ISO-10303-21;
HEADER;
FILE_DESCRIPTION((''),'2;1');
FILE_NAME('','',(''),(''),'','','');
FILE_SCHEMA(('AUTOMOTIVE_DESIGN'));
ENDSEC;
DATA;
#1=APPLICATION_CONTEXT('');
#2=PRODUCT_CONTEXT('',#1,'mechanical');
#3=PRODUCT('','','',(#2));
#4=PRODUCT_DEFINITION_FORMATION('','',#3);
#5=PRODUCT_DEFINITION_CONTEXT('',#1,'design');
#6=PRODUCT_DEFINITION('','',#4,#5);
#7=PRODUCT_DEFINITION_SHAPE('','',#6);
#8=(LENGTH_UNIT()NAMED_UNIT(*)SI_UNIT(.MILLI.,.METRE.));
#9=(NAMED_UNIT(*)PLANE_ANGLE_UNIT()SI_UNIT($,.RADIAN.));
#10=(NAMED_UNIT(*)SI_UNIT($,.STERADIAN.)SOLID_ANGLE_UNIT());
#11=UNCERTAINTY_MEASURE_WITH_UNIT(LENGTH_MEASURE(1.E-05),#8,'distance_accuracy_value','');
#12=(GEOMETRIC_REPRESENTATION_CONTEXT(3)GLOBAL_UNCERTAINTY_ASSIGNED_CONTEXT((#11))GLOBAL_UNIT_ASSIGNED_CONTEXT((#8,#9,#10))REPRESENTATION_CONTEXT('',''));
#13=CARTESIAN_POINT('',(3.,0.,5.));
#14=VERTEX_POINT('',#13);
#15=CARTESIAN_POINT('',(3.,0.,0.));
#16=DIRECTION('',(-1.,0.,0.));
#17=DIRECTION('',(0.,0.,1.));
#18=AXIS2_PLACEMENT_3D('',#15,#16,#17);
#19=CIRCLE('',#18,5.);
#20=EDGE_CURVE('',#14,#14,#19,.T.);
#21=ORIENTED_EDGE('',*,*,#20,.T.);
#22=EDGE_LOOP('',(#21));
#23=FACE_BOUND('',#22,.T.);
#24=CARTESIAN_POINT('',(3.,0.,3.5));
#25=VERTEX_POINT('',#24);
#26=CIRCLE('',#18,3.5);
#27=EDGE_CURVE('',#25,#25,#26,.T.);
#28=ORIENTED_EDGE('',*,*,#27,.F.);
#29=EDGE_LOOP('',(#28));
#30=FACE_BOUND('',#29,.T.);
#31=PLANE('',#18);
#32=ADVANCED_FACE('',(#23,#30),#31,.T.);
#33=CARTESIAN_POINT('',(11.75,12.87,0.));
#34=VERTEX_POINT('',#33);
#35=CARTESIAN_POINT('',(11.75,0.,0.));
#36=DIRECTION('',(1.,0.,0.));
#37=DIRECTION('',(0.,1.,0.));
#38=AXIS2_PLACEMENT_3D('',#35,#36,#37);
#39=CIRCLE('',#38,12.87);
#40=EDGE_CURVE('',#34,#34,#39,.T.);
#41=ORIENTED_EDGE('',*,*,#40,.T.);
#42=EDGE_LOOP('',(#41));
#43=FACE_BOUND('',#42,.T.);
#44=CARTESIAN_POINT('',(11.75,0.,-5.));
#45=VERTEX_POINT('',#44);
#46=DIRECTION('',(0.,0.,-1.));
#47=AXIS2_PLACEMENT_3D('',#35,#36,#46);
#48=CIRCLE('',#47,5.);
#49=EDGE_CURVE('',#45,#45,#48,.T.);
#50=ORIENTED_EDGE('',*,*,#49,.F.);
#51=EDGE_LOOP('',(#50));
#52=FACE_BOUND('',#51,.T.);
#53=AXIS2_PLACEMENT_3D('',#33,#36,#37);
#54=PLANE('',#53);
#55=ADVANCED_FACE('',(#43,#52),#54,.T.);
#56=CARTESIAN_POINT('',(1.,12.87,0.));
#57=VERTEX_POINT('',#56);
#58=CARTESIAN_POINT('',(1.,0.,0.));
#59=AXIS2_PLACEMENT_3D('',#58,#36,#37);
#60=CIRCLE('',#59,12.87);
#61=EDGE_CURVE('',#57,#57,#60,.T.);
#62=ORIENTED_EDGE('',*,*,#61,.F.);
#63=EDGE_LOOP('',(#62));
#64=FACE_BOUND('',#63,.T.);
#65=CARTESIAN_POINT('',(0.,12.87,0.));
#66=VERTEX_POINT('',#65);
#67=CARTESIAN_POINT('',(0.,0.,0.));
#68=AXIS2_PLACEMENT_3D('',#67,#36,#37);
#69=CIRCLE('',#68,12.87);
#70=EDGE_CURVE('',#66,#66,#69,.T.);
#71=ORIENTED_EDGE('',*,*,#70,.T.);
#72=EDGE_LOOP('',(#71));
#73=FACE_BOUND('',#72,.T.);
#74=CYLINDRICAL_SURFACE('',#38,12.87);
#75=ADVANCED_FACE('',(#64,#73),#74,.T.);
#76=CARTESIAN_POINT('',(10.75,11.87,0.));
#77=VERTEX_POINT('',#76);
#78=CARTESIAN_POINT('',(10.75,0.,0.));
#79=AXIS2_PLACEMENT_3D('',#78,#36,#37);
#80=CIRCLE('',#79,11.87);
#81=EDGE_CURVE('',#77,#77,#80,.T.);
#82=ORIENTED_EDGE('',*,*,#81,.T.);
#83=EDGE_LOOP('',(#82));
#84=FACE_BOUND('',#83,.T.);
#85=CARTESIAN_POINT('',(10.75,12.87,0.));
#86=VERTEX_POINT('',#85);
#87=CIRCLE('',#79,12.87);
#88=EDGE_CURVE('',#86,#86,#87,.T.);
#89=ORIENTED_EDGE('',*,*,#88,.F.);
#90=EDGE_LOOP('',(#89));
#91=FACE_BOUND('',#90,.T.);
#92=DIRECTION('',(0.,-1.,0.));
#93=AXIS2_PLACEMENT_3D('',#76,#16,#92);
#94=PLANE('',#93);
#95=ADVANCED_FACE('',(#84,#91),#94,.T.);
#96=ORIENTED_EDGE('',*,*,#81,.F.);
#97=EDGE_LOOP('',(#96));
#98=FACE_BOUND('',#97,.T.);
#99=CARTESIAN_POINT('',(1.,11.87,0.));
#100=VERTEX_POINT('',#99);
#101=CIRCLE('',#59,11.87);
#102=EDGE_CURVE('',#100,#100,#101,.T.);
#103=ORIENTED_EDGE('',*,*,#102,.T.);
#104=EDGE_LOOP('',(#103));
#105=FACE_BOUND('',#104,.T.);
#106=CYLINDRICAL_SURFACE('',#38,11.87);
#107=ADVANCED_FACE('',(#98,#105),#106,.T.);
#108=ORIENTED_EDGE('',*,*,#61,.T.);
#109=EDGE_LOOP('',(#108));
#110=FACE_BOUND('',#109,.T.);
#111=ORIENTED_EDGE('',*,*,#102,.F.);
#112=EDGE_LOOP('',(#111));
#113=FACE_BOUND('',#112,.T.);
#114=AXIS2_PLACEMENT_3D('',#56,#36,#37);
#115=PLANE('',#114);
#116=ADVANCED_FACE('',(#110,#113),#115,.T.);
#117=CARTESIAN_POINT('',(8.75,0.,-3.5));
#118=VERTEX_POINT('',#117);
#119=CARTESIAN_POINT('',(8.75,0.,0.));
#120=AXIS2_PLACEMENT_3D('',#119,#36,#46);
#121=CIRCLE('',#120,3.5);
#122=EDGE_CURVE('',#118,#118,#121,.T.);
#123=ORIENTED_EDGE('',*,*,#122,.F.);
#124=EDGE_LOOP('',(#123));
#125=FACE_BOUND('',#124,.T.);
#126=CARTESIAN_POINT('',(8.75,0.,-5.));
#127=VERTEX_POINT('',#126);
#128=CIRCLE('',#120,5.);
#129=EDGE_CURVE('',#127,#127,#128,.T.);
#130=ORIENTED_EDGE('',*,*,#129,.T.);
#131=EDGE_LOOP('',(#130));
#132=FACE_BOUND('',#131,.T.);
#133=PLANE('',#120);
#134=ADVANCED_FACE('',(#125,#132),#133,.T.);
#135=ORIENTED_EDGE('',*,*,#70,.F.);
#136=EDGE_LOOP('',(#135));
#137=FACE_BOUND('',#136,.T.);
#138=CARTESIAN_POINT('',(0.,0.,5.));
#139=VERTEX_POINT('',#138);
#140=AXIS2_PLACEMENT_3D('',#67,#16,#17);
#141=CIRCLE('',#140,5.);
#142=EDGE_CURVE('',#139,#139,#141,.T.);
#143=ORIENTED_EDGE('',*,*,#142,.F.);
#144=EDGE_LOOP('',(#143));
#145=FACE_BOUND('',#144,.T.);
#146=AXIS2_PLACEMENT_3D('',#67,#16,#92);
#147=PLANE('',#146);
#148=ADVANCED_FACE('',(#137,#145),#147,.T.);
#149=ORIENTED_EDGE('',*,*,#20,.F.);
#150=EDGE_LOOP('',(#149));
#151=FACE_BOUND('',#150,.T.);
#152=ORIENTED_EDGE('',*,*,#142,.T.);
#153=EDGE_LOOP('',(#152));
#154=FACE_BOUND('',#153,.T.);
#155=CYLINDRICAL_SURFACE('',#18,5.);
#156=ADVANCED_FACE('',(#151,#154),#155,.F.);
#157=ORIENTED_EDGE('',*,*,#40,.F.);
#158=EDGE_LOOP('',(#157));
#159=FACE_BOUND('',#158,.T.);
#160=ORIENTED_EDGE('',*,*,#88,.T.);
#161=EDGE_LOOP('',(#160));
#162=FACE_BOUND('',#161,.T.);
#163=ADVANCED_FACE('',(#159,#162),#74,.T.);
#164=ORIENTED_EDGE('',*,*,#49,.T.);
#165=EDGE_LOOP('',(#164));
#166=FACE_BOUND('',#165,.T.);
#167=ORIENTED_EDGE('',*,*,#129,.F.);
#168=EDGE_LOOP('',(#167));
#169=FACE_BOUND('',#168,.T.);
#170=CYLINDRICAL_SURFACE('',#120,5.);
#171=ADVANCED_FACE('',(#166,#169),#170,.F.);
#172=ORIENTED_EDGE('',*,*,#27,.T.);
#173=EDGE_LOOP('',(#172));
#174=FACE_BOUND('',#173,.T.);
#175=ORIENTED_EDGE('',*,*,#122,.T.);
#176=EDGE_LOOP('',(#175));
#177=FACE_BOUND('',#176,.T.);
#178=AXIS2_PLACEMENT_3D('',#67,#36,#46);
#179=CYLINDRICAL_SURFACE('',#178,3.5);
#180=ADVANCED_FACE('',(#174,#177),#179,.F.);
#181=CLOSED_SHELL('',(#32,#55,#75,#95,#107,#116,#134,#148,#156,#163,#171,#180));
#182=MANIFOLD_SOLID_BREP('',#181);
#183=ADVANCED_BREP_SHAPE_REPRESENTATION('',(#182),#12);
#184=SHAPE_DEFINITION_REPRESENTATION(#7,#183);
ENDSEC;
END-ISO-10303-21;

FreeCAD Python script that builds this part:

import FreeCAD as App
import Part
import Sketcher
from FreeCAD import Vector


def add_polygon(sketch, points):
    """Adds a closed chain of lines whose ends are joined by coincident constraints."""
    first, n = sketch.GeometryCount, len(points)
    for a, b in zip(points, points[1:] + points[:1]):
        sketch.addGeometry(Part.LineSegment(App.Vector(*a, 0), App.Vector(*b, 0)), False)
    for i in range(n):
        sketch.addConstraint(Sketcher.Constraint("Coincident", first + i, 2, first + (i + 1) % n, 1))

doc = App.newDocument("Part")
body = doc.addObject("PartDesign::Body", "Body")

# Sketch on XY plane
sketch1 = doc.addObject("Sketcher::SketchObject", "Sketch")
body.addObject(sketch1)
sketch1.AttachmentSupport = (doc.XY_Plane, [""])
sketch1.MapMode = "FlatFace"
add_polygon(sketch1, [(0, 12.87), (0, 0), (11.75, 0), (11.75, 12.87), (10.75, 12.87), (10.75, 11.87), (1, 11.87), (1, 12.87)])  # lines 0-7
sketch1.addConstraint([
    Sketcher.Constraint("Vertical", 0),
    Sketcher.Constraint("Horizontal", 1),
    Sketcher.Constraint("Vertical", 2),
    Sketcher.Constraint("Horizontal", 3),
    Sketcher.Constraint("Vertical", 4),
    Sketcher.Constraint("Horizontal", 5),
    Sketcher.Constraint("Vertical", 6),
    Sketcher.Constraint("Horizontal", 7),
    Sketcher.Constraint("Coincident", 0, 2, -1, 1),
    Sketcher.Constraint("Horizontal", 3, 2, 6, 2),
    Sketcher.Constraint("Equal", 3, 7),
    Sketcher.Constraint("Equal", 7, 4),
    Sketcher.Constraint("DistanceX", 3, 2, 3, 1, 1.0),
    Sketcher.Constraint("DistanceX", 1, 1, 1, 2, 11.75),
    Sketcher.Constraint("DistanceY", 0, 2, 0, 1, 12.87),
])
revolution = doc.addObject("PartDesign::Revolution", "Revolution")
body.addObject(revolution)
revolution.Profile = sketch1
revolution.ReferenceAxis = (sketch1, ["H_Axis"])
revolution.Angle = 360

# Sketch on YZ plane
sketch2 = doc.addObject("Sketcher::SketchObject", "Sketch001")
body.addObject(sketch2)
sketch2.AttachmentSupport = (doc.YZ_Plane, [""])
sketch2.MapMode = "FlatFace"
sketch2.AttachmentOffset = App.Placement(Vector(0, 0, 11.75), App.Rotation())
sketch2.addGeometry(Part.Circle(Vector(0, 0, 0), Vector(0, 0, 1), 5), False)
sketch2.addConstraint([
    Sketcher.Constraint("Coincident", 0, 3, -1, 1),
    Sketcher.Constraint("Diameter", 0, 10.0),
])
pocket1 = doc.addObject("PartDesign::Pocket", "Pocket")
body.addObject(pocket1)
pocket1.Profile = sketch2
pocket1.Length = 3

# Sketch on YZ plane
sketch3 = doc.addObject("Sketcher::SketchObject", "Sketch002")
body.addObject(sketch3)
sketch3.AttachmentSupport = (doc.YZ_Plane, [""])
sketch3.MapMode = "FlatFace"
sketch3.AttachmentOffset = App.Placement(Vector(0, 0, 3), App.Rotation())
sketch3.addGeometry(Part.Circle(Vector(0, 0, 0), Vector(0, 0, 1), 5), False)
sketch3.addConstraint([
    Sketcher.Constraint("Coincident", 0, 3, -1, 1),
    Sketcher.Constraint("Diameter", 0, 10.0),
])
pocket2 = doc.addObject("PartDesign::Pocket", "Pocket001")
body.addObject(pocket2)
pocket2.Profile = sketch3
pocket2.Length = 3

# Sketch on YZ plane
sketch4 = doc.addObject("Sketcher::SketchObject", "Sketch003")
body.addObject(sketch4)
sketch4.AttachmentSupport = (doc.YZ_Plane, [""])
sketch4.MapMode = "FlatFace"
sketch4.AttachmentOffset = App.Placement(Vector(0, 0, 8.75), App.Rotation())
sketch4.addGeometry(Part.Circle(Vector(0, 0, 0), Vector(0, 0, 1), 3.5), False)
sketch4.addConstraint([
    Sketcher.Constraint("Coincident", 0, 3, -1, 1),
    Sketcher.Constraint("Diameter", 0, 7.0),
])
pocket3 = doc.addObject("PartDesign::Pocket", "Pocket002")
body.addObject(pocket3)
pocket3.Profile = sketch4
pocket3.Type = "ThroughAll"

doc.recompute()
